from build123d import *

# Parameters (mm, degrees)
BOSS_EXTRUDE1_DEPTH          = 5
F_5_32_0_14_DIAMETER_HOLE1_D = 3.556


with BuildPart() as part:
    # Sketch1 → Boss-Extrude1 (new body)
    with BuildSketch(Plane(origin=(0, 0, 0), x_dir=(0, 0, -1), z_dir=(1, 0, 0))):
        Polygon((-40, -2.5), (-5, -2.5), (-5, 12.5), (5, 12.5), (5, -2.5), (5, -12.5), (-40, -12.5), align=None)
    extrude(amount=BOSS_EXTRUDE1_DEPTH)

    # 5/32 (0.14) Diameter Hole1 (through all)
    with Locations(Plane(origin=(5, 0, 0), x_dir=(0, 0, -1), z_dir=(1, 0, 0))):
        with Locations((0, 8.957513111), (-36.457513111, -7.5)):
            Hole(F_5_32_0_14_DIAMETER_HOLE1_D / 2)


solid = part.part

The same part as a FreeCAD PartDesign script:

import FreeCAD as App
import Part
import Sketcher

V = App.Vector
Q = App.Units.Quantity


def add_polygon(sketch, points):
    """Adds a closed chain of lines whose ends are joined by coincident constraints."""
    first, n = sketch.GeometryCount, len(points)
    for a, b in zip(points, points[1:] + points[:1]):
        sketch.addGeometry(Part.LineSegment(App.Vector(*a, 0), App.Vector(*b, 0)), False)
    for i in range(n):
        sketch.addConstraint(Sketcher.Constraint("Coincident", first + i, 2, first + (i + 1) % n, 1))

doc = App.newDocument("Part")
body = doc.addObject("PartDesign::Body", "Body")

sketch1 = body.newObject("Sketcher::SketchObject", "Sketch")
sketch1.AttachmentSupport = (doc.getObject("YZ_Plane"), [""])
sketch1.MapMode = "FlatFace"
add_polygon(sketch1, [(-2, 5), (-2, 40), (-12, 40), (-12, -5), (12, -5), (12, 5)])
sketch1.addConstraint(Sketcher.Constraint("Vertical", 0))
sketch1.addConstraint(Sketcher.Constraint("Horizontal", 1))
sketch1.addConstraint(Sketcher.Constraint("Vertical", 2))
sketch1.addConstraint(Sketcher.Constraint("Horizontal", 3))
sketch1.addConstraint(Sketcher.Constraint("Vertical", 4))
sketch1.addConstraint(Sketcher.Constraint("Horizontal", 5))
sketch1.addConstraint(Sketcher.Constraint("Symmetric", 2, 2, 4, 2, -1, 1))
sketch1.addConstraint(Sketcher.Constraint("Equal", 1, 4))
sketch1.addConstraint(Sketcher.Constraint("DistanceX", 1, 2, 1, 1, Q("10 mm")))
sketch1.addConstraint(Sketcher.Constraint("DistanceX", 3, 1, 3, 2, Q("25 mm")))
sketch1.addConstraint(Sketcher.Constraint("DistanceY", 0, 1, 0, 2, Q("35 mm")))
pad1 = body.newObject("PartDesign::Pad", "Pad")
pad1.Profile = sketch1
pad1.Length = 5

sketch2 = body.newObject("Sketcher::SketchObject", "Sketch001")
sketch2.AttachmentSupport = (doc.getObject("YZ_Plane"), [""])
sketch2.MapMode = "FlatFace"
sketch2.AttachmentOffset = App.Placement(V(0, 0, 5), App.Rotation())
sketch2.addGeometry(Part.Circle(V(9, 0, 0), V(0, 0, 1), 1.8), False)
sketch2.addGeometry(Part.Circle(V(-7.5, 36.5, 0), V(0, 0, 1), 1.8), False)
sketch2.addConstraint(Sketcher.Constraint("Equal", 0, 1))
sketch2.addConstraint(Sketcher.Constraint("PointOnObject", 0, 3, -1))
sketch2.addConstraint(Sketcher.Constraint("Diameter", 0, Q("3.556 mm")))
sketch2.addConstraint(Sketcher.Constraint("DistanceX", 1, 3, -1, 1, Q("7.5 mm")))
sketch2.addConstraint(Sketcher.Constraint("DistanceX", -1, 1, 0, 3, Q("8.957513 mm")))
sketch2.addConstraint(Sketcher.Constraint("DistanceY", -1, 1, 1, 3, Q("36.457513 mm")))
doc.recompute()
hole = body.newObject("PartDesign::Hole", "Hole")
hole.Profile = sketch2
hole.ThreadType = "None"
hole.Diameter = 3.556
hole.DepthType = "ThroughAll"

doc.recompute()
